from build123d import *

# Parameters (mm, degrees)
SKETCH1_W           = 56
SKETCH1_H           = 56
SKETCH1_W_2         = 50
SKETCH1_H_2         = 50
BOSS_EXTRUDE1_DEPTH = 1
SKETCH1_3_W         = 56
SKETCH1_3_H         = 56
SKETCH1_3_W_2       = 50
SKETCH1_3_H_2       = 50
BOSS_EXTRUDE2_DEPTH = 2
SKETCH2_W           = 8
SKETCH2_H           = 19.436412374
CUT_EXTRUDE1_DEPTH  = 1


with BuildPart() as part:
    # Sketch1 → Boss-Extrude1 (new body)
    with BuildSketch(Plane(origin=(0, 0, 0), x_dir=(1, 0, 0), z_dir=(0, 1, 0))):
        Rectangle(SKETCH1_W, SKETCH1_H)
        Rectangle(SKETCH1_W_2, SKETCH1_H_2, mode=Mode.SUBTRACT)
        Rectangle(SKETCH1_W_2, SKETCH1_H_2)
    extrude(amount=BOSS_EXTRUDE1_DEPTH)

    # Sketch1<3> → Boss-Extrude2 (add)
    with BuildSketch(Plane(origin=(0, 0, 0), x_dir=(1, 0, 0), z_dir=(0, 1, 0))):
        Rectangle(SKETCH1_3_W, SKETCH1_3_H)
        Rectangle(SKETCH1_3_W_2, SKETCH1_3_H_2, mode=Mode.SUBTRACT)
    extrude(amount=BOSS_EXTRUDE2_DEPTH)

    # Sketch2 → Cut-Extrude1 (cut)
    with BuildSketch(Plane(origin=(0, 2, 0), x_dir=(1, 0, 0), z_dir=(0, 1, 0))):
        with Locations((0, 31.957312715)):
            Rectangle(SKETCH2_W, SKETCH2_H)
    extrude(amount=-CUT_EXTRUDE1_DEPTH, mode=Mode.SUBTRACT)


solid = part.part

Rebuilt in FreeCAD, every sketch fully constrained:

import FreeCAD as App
import Part
import Sketcher
from FreeCAD import Vector

doc = App.newDocument("Part")
body = doc.addObject("PartDesign::Body", "Body")

# Sketch on XZ plane
sketch1 = body.newObject("Sketcher::SketchObject", "Sketch")
sketch1.AttachmentSupport = (doc.getObject("XZ_Plane"), [""])
sketch1.MapMode = "FlatFace"
sketch1.addGeometry([
    Part.LineSegment(Vector(-28, -28, 0), Vector(-28, 28, 0)),
    Part.LineSegment(Vector(-28, 28, 0), Vector(28, 28, 0)),
    Part.LineSegment(Vector(28, 28, 0), Vector(28, -28, 0)),
    Part.LineSegment(Vector(28, -28, 0), Vector(-28, -28, 0)),
], False)
sketch1.addConstraint([
    Sketcher.Constraint("Coincident", 0, 2, 1, 1),
    Sketcher.Constraint("Coincident", 1, 2, 2, 1),
    Sketcher.Constraint("Coincident", 2, 2, 3, 1),
    Sketcher.Constraint("Coincident", 3, 2, 0, 1),
    Sketcher.Constraint("Vertical", 0),
    Sketcher.Constraint("Horizontal", 1),
    Sketcher.Constraint("Vertical", 2),
    Sketcher.Constraint("Horizontal", 3),
    Sketcher.Constraint("Symmetric", 0, 2, 2, 2, -1, 1),
    Sketcher.Constraint("Equal", 3, 0),
    Sketcher.Constraint("DistanceX", 1, 1, 1, 2, 56.0),
])
pad1 = body.newObject("PartDesign::Pad", "Pad")
pad1.Profile = sketch1
pad1.Length = 1
pad1.Reversed = True

# Sketch on XZ plane
sketch2 = body.newObject("Sketcher::SketchObject", "Sketch001")
sketch2.AttachmentSupport = (doc.getObject("XZ_Plane"), [""])
sketch2.MapMode = "FlatFace"
sketch2.addGeometry([
    Part.LineSegment(Vector(-28, -28, 0), Vector(-28, 28, 0)),  # 0
    Part.LineSegment(Vector(-28, 28, 0), Vector(28, 28, 0)),  # 1
    Part.LineSegment(Vector(28, 28, 0), Vector(28, -28, 0)),  # 2
    Part.LineSegment(Vector(28, -28, 0), Vector(-28, -28, 0)),  # 3
    Part.LineSegment(Vector(25, 25, 0), Vector(-25, 25, 0)),  # 4
    Part.LineSegment(Vector(-25, 25, 0), Vector(-25, -25, 0)),  # 5
    Part.LineSegment(Vector(-25, -25, 0), Vector(25, -25, 0)),  # 6
    Part.LineSegment(Vector(25, -25, 0), Vector(25, 25, 0)),  # 7
], False)
sketch2.addConstraint([
    Sketcher.Constraint("Coincident", 0, 2, 1, 1),
    Sketcher.Constraint("Coincident", 1, 2, 2, 1),
    Sketcher.Constraint("Coincident", 2, 2, 3, 1),
    Sketcher.Constraint("Coincident", 3, 2, 0, 1),
    Sketcher.Constraint("Coincident", 4, 2, 5, 1),
    Sketcher.Constraint("Coincident", 5, 2, 6, 1),
    Sketcher.Constraint("Coincident", 6, 2, 7, 1),
    Sketcher.Constraint("Coincident", 7, 2, 4, 1),
    Sketcher.Constraint("Vertical", 0),
    Sketcher.Constraint("Horizontal", 1),
    Sketcher.Constraint("Vertical", 2),
    Sketcher.Constraint("Horizontal", 3),
    Sketcher.Constraint("Horizontal", 4),
    Sketcher.Constraint("Vertical", 5),
    Sketcher.Constraint("Horizontal", 6),
    Sketcher.Constraint("Vertical", 7),
    Sketcher.Constraint("Symmetric", 0, 2, 2, 2, -1, 1),
    Sketcher.Constraint("Symmetric", 4, 2, 6, 2, -1, 1),
    Sketcher.Constraint("Equal", 3, 0),
    Sketcher.Constraint("Equal", 6, 5),
    Sketcher.Constraint("DistanceX", 1, 1, 1, 2, 56.0),
    Sketcher.Constraint("DistanceX", 4, 2, 4, 1, 50.0),
])
pad2 = body.newObject("PartDesign::Pad", "Pad001")
pad2.Profile = sketch2
pad2.Length = 2
pad2.Reversed = True

# Sketch on XZ plane
sketch3 = body.newObject("Sketcher::SketchObject", "Sketch002")
sketch3.AttachmentSupport = (doc.getObject("XZ_Plane"), [""])
sketch3.MapMode = "FlatFace"
sketch3.AttachmentOffset = App.Placement(Vector(0, 0, -2), App.Rotation())
sketch3.addGeometry([
    Part.LineSegment(Vector(-4, -42, 0), Vector(-4, -22, 0)),
    Part.LineSegment(Vector(-4, -22, 0), Vector(4, -22, 0)),
    Part.LineSegment(Vector(4, -22, 0), Vector(4, -42, 0)),
    Part.LineSegment(Vector(4, -42, 0), Vector(-4, -42, 0)),
], False)
sketch3.addConstraint([
    Sketcher.Constraint("Coincident", 0, 2, 1, 1),
    Sketcher.Constraint("Coincident", 1, 2, 2, 1),
    Sketcher.Constraint("Coincident", 2, 2, 3, 1),
    Sketcher.Constraint("Coincident", 3, 2, 0, 1),
    Sketcher.Constraint("Vertical", 0),
    Sketcher.Constraint("Horizontal", 1),
    Sketcher.Constraint("Vertical", 2),
    Sketcher.Constraint("Horizontal", 3),
    Sketcher.Constraint("DistanceX", 1, 1, 1, 2, 8.0),
    Sketcher.Constraint("DistanceX", 0, 2, -1, 1, 4.0),
    Sketcher.Constraint("DistanceY", 0, 1, 0, 2, 19.436412),
    Sketcher.Constraint("DistanceY", 2, 2, -1, 1, 41.675519),
])
pocket1 = body.newObject("PartDesign::Pocket", "Pocket")
pocket1.Profile = sketch3
pocket1.Length = 1
pocket1.Reversed = True

doc.recompute()
